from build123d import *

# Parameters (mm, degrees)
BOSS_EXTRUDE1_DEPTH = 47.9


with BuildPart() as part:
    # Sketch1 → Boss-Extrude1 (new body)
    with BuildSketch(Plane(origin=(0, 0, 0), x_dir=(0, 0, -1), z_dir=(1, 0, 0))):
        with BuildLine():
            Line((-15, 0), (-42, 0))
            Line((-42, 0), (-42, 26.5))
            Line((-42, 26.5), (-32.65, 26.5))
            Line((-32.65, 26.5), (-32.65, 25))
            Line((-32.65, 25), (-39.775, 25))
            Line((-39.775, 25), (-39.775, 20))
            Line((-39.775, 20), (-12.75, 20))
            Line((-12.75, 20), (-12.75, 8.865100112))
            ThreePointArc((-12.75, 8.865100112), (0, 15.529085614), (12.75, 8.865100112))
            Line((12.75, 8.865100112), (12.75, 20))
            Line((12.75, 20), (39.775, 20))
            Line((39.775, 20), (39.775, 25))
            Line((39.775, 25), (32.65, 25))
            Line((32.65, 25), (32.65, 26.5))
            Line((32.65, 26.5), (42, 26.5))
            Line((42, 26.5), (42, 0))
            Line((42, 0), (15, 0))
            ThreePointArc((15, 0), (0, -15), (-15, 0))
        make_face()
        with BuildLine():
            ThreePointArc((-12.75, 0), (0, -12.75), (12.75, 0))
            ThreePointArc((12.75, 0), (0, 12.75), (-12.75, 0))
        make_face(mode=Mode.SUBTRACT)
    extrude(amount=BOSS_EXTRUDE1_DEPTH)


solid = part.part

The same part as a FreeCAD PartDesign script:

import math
import FreeCAD as App
import Part
import Sketcher
Q = App.Units.Quantity

doc = App.newDocument("Part")
body = doc.addObject("PartDesign::Body", "Body")

# Sketch on YZ plane
sketch1 = body.newObject("Sketcher::SketchObject", "Sketch")
sketch1.AttachmentSupport = (doc.getObject("YZ_Plane"), [""])
sketch1.MapMode = "FlatFace"
sketch1.addGeometry([
    Part.LineSegment(App.Vector(0, 42, 0), App.Vector(0, 15, 0)),  # 0
    Part.ArcOfCircle(Part.Circle(App.Vector(0, 0, 0), App.Vector(0, 0, 1), 15), math.radians(90), math.radians(270)),  # 1
    Part.LineSegment(App.Vector(0, -15, 0), App.Vector(0, -42, 0)),  # 2
    Part.LineSegment(App.Vector(0, -42, 0), App.Vector(26.5, -42, 0)),  # 3
    Part.LineSegment(App.Vector(26.5, -42, 0), App.Vector(26.5, -32.6, 0)),  # 4
    Part.LineSegment(App.Vector(26.5, -32.6, 0), App.Vector(25, -32.6, 0)),  # 5
    Part.LineSegment(App.Vector(25, -32.6, 0), App.Vector(25, -39.8, 0)),  # 6
    Part.LineSegment(App.Vector(25, -39.8, 0), App.Vector(20, -39.8, 0)),  # 7
    Part.LineSegment(App.Vector(20, -39.8, 0), App.Vector(20, -12.8, 0)),  # 8
    Part.LineSegment(App.Vector(20, -12.8, 0), App.Vector(8.9, -12.8, 0)),  # 9
    Part.ArcOfCircle(Part.Circle(App.Vector(0, 0, 0), App.Vector(0, 0, 1), 15.5), math.radians(-55), math.radians(55)),  # 10
    Part.LineSegment(App.Vector(8.9, 12.8, 0), App.Vector(20, 12.8, 0)),  # 11
    Part.LineSegment(App.Vector(20, 12.8, 0), App.Vector(20, 39.8, 0)),  # 12
    Part.LineSegment(App.Vector(20, 39.8, 0), App.Vector(25, 39.8, 0)),  # 13
    Part.LineSegment(App.Vector(25, 39.8, 0), App.Vector(25, 32.6, 0)),  # 14
    Part.LineSegment(App.Vector(25, 32.6, 0), App.Vector(26.5, 32.6, 0)),  # 15
    Part.LineSegment(App.Vector(26.5, 32.6, 0), App.Vector(26.5, 42, 0)),  # 16
    Part.LineSegment(App.Vector(26.5, 42, 0), App.Vector(0, 42, 0)),  # 17
    Part.Circle(App.Vector(0, 0, 0), App.Vector(0, 0, 1), 12.8),  # 18
], False)
sketch1.addConstraint([
    Sketcher.Constraint("Coincident", 0, 2, 1, 1),
    Sketcher.Constraint("Coincident", 1, 2, 2, 1),
    Sketcher.Constraint("Coincident", 2, 2, 3, 1),
    Sketcher.Constraint("Coincident", 3, 2, 4, 1),
    Sketcher.Constraint("Coincident", 4, 2, 5, 1),
    Sketcher.Constraint("Coincident", 5, 2, 6, 1),
    Sketcher.Constraint("Coincident", 6, 2, 7, 1),
    Sketcher.Constraint("Coincident", 7, 2, 8, 1),
    Sketcher.Constraint("Coincident", 8, 2, 9, 1),
    Sketcher.Constraint("Coincident", 9, 2, 10, 1),
    Sketcher.Constraint("Coincident", 10, 2, 11, 1),
    Sketcher.Constraint("Coincident", 11, 2, 12, 1),
    Sketcher.Constraint("Coincident", 12, 2, 13, 1),
    Sketcher.Constraint("Coincident", 13, 2, 14, 1),
    Sketcher.Constraint("Coincident", 14, 2, 15, 1),
    Sketcher.Constraint("Coincident", 15, 2, 16, 1),
    Sketcher.Constraint("Coincident", 16, 2, 17, 1),
    Sketcher.Constraint("Coincident", 17, 2, 0, 1),
    Sketcher.Constraint("Vertical", 0),
    Sketcher.Constraint("Vertical", 2),
    Sketcher.Constraint("Horizontal", 3),
    Sketcher.Constraint("Vertical", 4),
    Sketcher.Constraint("Horizontal", 5),
    Sketcher.Constraint("Vertical", 6),
    Sketcher.Constraint("Horizontal", 7),
    Sketcher.Constraint("Vertical", 8),
    Sketcher.Constraint("Horizontal", 9),
    Sketcher.Constraint("Horizontal", 11),
    Sketcher.Constraint("Vertical", 12),
    Sketcher.Constraint("Horizontal", 13),
    Sketcher.Constraint("Vertical", 14),
    Sketcher.Constraint("Horizontal", 15),
    Sketcher.Constraint("Vertical", 16),
    Sketcher.Constraint("Horizontal", 17),
    Sketcher.Constraint("Coincident", 1, 3, -1, 1),
    Sketcher.Constraint("Coincident", 10, 3, -1, 1),
    Sketcher.Constraint("Coincident", 18, 3, -1, 1),
    Sketcher.Constraint("Symmetric", 2, 2, 17, 2, -1, 1),
    Sketcher.Constraint("Symmetric", 8, 2, 11, 2, -1),
    Sketcher.Constraint("Symmetric", 6, 2, 13, 2, -1),
    Sketcher.Constraint("Symmetric", 4, 2, 15, 2, -1),
    Sketcher.Constraint("PointOnObject", 0, 2, -2),
    Sketcher.Constraint("Radius", 1, Q("15 mm")),
    Sketcher.Constraint("Diameter", 18, Q("25.5 mm")),
    Sketcher.Constraint("DistanceX", 7, 2, 7, 1, Q("5 mm")),
    Sketcher.Constraint("DistanceY", 0, 2, 0, 1, Q("27 mm")),
    Sketcher.Constraint("DistanceX", 3, 1, 3, 2, Q("26.5 mm")),
    Sketcher.Constraint("DistanceX", 5, 2, 5, 1, Q("1.5 mm")),
    Sketcher.Constraint("DistanceY", 4, 1, 4, 2, Q("9.35 mm")),
    Sketcher.Constraint("DistanceY", 5, 2, 8, 2, Q("19.9 mm")),
    Sketcher.Constraint("DistanceY", 6, 2, 6, 1, Q("7.125 mm")),
    Sketcher.Constraint("DistanceX", 9, 2, 9, 1, Q("11.1349 mm")),
])
pad1 = body.newObject("PartDesign::Pad", "Pad")
pad1.Profile = sketch1
pad1.Length = 47.9

doc.recompute()
